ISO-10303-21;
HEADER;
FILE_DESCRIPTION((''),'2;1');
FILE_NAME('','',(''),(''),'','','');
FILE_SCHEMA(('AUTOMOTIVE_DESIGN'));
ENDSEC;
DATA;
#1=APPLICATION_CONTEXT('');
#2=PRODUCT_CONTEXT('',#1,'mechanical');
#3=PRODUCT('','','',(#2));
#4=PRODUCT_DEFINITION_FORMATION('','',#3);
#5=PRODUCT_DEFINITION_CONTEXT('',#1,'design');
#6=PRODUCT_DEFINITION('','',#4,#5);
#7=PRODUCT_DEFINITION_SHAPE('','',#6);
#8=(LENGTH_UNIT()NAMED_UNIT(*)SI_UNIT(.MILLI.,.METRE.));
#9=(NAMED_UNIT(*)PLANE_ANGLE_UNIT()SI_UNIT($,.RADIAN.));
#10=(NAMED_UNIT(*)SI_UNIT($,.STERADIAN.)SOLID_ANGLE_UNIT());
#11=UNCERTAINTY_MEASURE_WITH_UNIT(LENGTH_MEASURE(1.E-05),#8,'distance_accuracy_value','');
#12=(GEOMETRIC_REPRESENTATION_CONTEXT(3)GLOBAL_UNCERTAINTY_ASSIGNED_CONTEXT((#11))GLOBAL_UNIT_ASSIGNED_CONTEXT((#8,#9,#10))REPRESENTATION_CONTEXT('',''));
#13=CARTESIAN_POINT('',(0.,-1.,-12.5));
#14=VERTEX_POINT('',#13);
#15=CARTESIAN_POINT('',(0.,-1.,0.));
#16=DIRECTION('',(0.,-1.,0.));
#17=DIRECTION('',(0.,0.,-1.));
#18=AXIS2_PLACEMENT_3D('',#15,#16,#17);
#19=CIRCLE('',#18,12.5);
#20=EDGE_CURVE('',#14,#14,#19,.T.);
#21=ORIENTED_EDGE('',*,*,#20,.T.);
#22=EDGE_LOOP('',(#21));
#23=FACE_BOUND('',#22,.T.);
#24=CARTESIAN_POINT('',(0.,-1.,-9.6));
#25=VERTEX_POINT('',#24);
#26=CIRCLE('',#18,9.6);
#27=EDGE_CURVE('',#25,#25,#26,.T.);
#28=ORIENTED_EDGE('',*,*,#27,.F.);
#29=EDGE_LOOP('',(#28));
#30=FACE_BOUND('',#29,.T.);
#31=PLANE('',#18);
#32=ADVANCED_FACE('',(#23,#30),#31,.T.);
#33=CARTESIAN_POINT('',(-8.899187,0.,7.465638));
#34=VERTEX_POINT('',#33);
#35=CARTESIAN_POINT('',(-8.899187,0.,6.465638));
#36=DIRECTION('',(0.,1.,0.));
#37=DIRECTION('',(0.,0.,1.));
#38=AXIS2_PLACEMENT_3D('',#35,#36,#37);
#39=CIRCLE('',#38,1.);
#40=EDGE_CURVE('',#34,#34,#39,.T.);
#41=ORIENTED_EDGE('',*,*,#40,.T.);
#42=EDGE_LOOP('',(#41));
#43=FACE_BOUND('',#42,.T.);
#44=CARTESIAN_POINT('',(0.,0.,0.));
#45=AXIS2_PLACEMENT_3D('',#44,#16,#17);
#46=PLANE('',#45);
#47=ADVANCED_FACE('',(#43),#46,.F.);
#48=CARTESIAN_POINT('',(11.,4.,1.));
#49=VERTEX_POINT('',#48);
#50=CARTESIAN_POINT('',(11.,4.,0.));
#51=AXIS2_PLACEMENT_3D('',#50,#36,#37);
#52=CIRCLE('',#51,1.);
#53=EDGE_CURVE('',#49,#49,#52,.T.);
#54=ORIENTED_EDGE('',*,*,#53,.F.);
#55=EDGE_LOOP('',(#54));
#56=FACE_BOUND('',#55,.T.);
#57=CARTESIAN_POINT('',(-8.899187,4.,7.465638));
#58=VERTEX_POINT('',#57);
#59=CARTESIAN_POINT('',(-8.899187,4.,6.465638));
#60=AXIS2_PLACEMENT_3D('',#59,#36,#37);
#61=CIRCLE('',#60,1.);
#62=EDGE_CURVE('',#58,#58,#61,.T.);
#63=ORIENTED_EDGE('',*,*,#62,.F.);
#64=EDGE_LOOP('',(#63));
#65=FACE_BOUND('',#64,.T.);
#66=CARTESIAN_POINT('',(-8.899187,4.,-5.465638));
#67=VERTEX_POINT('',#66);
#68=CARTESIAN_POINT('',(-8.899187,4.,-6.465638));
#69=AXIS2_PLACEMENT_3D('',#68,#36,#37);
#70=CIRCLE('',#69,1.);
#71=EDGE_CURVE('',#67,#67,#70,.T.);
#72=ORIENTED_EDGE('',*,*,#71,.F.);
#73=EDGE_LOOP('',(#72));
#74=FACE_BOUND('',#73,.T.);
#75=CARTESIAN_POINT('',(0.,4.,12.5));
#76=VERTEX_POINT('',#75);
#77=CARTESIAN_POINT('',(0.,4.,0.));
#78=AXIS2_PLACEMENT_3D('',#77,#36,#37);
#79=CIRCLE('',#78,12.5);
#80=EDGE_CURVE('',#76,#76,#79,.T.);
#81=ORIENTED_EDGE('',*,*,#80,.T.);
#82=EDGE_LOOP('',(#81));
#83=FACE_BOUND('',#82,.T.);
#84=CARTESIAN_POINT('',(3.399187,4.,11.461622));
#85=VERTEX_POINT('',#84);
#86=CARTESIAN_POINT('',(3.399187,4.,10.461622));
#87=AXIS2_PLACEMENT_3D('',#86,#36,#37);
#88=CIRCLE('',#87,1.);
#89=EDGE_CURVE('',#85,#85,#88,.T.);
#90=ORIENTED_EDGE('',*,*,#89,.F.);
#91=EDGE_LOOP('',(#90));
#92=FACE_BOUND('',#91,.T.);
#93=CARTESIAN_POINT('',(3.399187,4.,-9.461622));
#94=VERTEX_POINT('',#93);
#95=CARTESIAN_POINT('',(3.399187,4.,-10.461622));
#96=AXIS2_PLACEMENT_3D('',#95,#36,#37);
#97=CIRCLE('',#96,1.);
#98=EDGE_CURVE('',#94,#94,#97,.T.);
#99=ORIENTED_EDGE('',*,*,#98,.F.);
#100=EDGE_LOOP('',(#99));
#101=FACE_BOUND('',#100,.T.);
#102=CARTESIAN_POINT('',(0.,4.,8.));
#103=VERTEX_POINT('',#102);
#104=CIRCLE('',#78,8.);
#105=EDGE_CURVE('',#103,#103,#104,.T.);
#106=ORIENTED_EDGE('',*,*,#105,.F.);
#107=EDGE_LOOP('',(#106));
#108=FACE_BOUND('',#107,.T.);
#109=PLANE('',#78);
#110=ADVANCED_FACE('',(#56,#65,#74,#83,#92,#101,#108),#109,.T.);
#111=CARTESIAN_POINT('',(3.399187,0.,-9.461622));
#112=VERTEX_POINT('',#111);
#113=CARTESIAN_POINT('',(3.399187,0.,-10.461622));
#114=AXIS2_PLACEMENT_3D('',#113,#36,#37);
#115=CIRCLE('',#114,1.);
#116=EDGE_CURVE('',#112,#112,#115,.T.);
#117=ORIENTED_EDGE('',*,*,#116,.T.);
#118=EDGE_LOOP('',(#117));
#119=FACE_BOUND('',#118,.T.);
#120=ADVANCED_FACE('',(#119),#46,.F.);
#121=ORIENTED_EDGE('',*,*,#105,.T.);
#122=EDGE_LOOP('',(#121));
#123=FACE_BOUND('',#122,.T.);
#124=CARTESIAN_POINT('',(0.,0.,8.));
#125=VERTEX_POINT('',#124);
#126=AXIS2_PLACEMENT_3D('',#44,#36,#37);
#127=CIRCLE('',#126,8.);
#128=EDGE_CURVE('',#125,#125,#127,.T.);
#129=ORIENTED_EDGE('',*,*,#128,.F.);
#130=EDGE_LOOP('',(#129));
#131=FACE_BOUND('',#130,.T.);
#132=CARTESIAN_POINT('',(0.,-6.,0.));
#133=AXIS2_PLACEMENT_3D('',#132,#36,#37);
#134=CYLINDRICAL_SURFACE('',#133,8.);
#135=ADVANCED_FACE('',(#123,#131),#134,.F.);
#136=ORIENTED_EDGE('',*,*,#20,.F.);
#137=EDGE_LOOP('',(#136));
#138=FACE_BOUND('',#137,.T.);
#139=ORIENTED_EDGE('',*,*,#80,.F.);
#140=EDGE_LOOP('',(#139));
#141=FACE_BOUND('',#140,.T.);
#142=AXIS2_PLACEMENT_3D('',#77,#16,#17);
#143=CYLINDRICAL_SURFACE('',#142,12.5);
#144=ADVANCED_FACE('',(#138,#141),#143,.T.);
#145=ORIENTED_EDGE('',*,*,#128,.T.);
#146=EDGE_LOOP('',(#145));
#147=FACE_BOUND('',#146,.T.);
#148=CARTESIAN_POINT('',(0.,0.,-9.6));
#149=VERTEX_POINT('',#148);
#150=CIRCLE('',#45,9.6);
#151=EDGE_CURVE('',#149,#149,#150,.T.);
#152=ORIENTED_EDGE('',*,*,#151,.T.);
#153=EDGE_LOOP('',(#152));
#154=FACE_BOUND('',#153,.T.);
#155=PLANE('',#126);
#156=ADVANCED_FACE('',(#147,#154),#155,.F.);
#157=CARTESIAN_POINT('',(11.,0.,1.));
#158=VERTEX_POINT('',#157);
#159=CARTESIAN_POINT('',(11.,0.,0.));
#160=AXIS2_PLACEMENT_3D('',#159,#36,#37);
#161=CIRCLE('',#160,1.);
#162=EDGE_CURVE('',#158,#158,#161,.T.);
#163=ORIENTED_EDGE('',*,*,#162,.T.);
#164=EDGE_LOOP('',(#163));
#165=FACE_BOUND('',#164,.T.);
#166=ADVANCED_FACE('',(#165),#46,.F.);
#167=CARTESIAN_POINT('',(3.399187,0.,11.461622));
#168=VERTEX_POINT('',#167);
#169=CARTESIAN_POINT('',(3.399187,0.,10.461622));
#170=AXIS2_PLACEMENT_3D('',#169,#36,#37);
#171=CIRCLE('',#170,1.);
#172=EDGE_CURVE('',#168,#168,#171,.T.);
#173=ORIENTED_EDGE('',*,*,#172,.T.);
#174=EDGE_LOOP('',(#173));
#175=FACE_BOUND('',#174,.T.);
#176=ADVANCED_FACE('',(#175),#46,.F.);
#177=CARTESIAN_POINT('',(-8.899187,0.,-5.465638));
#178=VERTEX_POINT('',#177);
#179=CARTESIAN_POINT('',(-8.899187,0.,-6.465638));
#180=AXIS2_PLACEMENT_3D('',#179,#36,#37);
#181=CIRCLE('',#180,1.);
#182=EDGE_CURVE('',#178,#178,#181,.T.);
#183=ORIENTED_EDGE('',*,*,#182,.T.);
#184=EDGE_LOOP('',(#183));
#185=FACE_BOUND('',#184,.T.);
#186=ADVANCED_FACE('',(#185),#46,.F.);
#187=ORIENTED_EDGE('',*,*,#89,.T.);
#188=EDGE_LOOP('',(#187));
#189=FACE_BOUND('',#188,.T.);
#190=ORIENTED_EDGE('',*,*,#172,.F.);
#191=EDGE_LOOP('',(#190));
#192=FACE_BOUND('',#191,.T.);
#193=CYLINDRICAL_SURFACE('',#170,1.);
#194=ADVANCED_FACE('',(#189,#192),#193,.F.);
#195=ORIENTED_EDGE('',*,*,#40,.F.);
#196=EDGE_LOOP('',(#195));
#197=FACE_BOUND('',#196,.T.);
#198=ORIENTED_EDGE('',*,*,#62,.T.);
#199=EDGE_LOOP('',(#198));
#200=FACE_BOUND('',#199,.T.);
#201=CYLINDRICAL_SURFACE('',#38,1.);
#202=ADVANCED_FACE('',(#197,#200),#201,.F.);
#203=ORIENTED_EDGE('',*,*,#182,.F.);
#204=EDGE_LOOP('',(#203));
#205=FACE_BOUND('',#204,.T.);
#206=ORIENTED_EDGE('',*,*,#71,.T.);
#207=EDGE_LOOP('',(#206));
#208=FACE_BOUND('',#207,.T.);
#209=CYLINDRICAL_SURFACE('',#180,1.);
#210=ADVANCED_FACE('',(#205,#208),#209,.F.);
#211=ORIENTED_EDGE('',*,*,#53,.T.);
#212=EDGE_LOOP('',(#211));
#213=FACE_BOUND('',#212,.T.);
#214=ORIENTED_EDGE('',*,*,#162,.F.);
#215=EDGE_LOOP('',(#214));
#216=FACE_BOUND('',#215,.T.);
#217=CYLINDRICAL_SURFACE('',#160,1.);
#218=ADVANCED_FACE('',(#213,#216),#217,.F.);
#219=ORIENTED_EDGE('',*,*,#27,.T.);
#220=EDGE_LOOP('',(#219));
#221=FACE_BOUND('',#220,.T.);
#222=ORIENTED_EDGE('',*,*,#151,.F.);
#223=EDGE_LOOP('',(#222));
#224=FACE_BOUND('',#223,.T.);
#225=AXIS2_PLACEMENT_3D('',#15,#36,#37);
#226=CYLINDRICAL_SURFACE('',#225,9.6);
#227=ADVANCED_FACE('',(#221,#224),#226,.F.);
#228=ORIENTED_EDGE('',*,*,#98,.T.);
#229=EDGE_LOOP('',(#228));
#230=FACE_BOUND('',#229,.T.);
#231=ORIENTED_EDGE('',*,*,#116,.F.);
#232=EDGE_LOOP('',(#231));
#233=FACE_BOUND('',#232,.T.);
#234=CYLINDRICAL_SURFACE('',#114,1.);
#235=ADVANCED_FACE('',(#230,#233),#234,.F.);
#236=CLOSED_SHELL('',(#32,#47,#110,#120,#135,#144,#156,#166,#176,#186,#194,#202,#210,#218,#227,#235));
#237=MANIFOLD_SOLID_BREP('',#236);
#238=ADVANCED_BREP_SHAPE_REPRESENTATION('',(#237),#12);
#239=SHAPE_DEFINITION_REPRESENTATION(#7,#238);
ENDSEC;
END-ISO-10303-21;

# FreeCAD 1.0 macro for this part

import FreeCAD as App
import Part
import Sketcher

V = App.Vector

doc = App.newDocument("Part")
body = doc.addObject("PartDesign::Body", "Body")

sketch1 = doc.addObject("Sketcher::SketchObject", "Sketch")
body.addObject(sketch1)
sketch1.AttachmentSupport = (doc.XZ_Plane, [""])
sketch1.MapMode = "FlatFace"
sketch1.addGeometry(Part.Circle(V(0, 0, 0), V(0, 0, 1), 12), False)
sketch1.addConstraint([
    Sketcher.Constraint("Coincident", 0, 3, -1, 1),
    Sketcher.Constraint("Diameter", 0, 25.0),
])
pad1 = doc.addObject("PartDesign::Pad", "Pad")
body.addObject(pad1)
pad1.Profile = sketch1
pad1.Length = 4
pad1.Reversed = True

sketch2 = doc.addObject("Sketcher::SketchObject", "Sketch001")
body.addObject(sketch2)
sketch2.AttachmentSupport = (doc.XZ_Plane, [""])
sketch2.MapMode = "FlatFace"
sketch2.AttachmentOffset = App.Placement(V(0, 0, -4), App.Rotation())
sketch2.addGeometry([
    Part.Circle(V(10, 0, 0), V(0, 0, 1), 1),
    Part.Circle(V(3.4, 10.5, 0), V(0, 0, 1), 1),
    Part.Circle(V(-8.6, 7.4, 0), V(0, 0, 1), 1),
    Part.Circle(V(-9.4, -4.9, 0), V(0, 0, 1), 1),
    Part.Circle(V(2.1, -9.5, 0), V(0, 0, 1), 1),
], False)
sketch2.addConstraint([
    Sketcher.Constraint("Equal", 0, 1),
    Sketcher.Constraint("Equal", 1, 2),
    Sketcher.Constraint("Equal", 2, 3),
    Sketcher.Constraint("Equal", 3, 4),
    Sketcher.Constraint("PointOnObject", 0, 3, -1),
    Sketcher.Constraint("Diameter", 0, 2.0),
    Sketcher.Constraint("DistanceX", -1, 1, 0, 3, 10.0),
    Sketcher.Constraint("DistanceY", -1, 1, 1, 3, 10.461622),
    Sketcher.Constraint("DistanceX", 2, 3, -1, 1, 8.59017),
    Sketcher.Constraint("DistanceX", -1, 1, 4, 3, 2.09017),
    Sketcher.Constraint("DistanceY", 3, 3, 2, 3, 12.34349),
    Sketcher.Constraint("DistanceY", 4, 3, 3, 3, 4.583769),
    Sketcher.Constraint("DistanceX", -1, 1, 1, 3, 3.399187),
    Sketcher.Constraint("DistanceY", -1, 1, 2, 3, 7.416694),
    Sketcher.Constraint("DistanceX", 3, 3, -1, 1, 9.399187),
])
pad2 = doc.addObject("PartDesign::Pad", "Pad001")
body.addObject(pad2)
pad2.Profile = sketch2
pad2.Length = 7.5
pad2.Reversed = True

sketch3 = doc.addObject("Sketcher::SketchObject", "Sketch002")
body.addObject(sketch3)
sketch3.AttachmentSupport = (doc.XZ_Plane, [""])
sketch3.MapMode = "FlatFace"
sketch3.AttachmentOffset = App.Placement(V(0, 0, -4), App.Rotation())
sketch3.addGeometry(Part.Circle(V(0, 0, 0), V(0, 0, 1), 6), False)
sketch3.addConstraint([
    Sketcher.Constraint("Coincident", 0, 3, -1, 1),
    Sketcher.Constraint("Diameter", 0, 12.0),
])
pocket1 = doc.addObject("PartDesign::Pocket", "Pocket")
body.addObject(pocket1)
pocket1.Profile = sketch3
pocket1.Length = 10
pocket1.Reversed = True

sketch4 = doc.addObject("Sketcher::SketchObject", "Sketch003")
body.addObject(sketch4)
sketch4.AttachmentSupport = (doc.XZ_Plane, [""])
sketch4.MapMode = "FlatFace"
sketch4.AttachmentOffset = App.Placement(V(0, 0, -11.5), App.Rotation())
sketch4.addGeometry(Part.Circle(V(-9.4, -4.9, 0), V(0, 0, 1), 1), False)
sketch4.addConstraint([
    Sketcher.Constraint("Diameter", 0, 2.0),
    Sketcher.Constraint("DistanceX", 0, 3, -1, 1, 9.399187),
    Sketcher.Constraint("DistanceY", 0, 3, -1, 1, 4.926796),
])
pocket2 = doc.addObject("PartDesign::Pocket", "Pocket001")
body.addObject(pocket2)
pocket2.Profile = sketch4
pocket2.Length = 7.5
pocket2.Reversed = True

sketch5 = doc.addObject("Sketcher::SketchObject", "Sketch004")
body.addObject(sketch5)
sketch5.AttachmentSupport = (doc.XZ_Plane, [""])
sketch5.MapMode = "FlatFace"
sketch5.AttachmentOffset = App.Placement(V(0, 0, -4), App.Rotation())
sketch5.addGeometry([
    Part.Circle(V(0, 0, 0), V(0, 0, 1), 12),
    Part.Circle(V(0, 0, 0), V(0, 0, 1), 6),
], False)
sketch5.addConstraint([
    Sketcher.Constraint("Coincident", 0, 3, -1, 1),
    Sketcher.Constraint("Coincident", 1, 3, -1, 1),
    Sketcher.Constraint("Diameter", 0, 25.0),
    Sketcher.Constraint("Diameter", 1, 12.0),
])
pocket3 = doc.addObject("PartDesign::Pocket", "Pocket002")
body.addObject(pocket3)
pocket3.Profile = sketch5
pocket3.Length = 10

sketch6 = doc.addObject("Sketcher::SketchObject", "Sketch005")
body.addObject(sketch6)
sketch6.AttachmentSupport = (doc.XZ_Plane, [""])
sketch6.MapMode = "FlatFace"
sketch6.AttachmentOffset = App.Placement(V(0, 0, -4), App.Rotation())
sketch6.addGeometry([
    Part.Circle(V(11, 0, 0), V(0, 0, 1), 1),
    Part.Circle(V(3.4, 10.5, 0), V(0, 0, 1), 1),
    Part.Circle(V(-8.9, 6.5, 0), V(0, 0, 1), 1),
    Part.Circle(V(-8.9, -6.5, 0), V(0, 0, 1), 1),
    Part.Circle(V(3.4, -10.5, 0), V(0, 0, 1), 1),
], False)
sketch6.addConstraint([
    Sketcher.Constraint("Equal", 0, 1),
    Sketcher.Constraint("Equal", 1, 2),
    Sketcher.Constraint("Equal", 2, 3),
    Sketcher.Constraint("Equal", 3, 4),
    Sketcher.Constraint("Symmetric", 2, 3, 3, 3, -1),
    Sketcher.Constraint("Symmetric", 1, 3, 4, 3, -1),
    Sketcher.Constraint("PointOnObject", 0, 3, -1),
    Sketcher.Constraint("Diameter", 0, 2.0),
    Sketcher.Constraint("DistanceX", -1, 1, 0, 3, 11.0),
    Sketcher.Constraint("DistanceY", -1, 1, 1, 3, 10.461622),
    Sketcher.Constraint("DistanceY", 3, 3, 1, 3, 16.927259),
    Sketcher.Constraint("DistanceX", -1, 1, 1, 3, 3.399187),
    Sketcher.Constraint("DistanceX", 2, 3, -1, 1, 8.899187),
])
pad3 = doc.addObject("PartDesign::Pad", "Pad002")
body.addObject(pad3)
pad3.Profile = sketch6
pad3.Length = 10
pad3.Reversed = True

sketch7 = doc.addObject("Sketcher::SketchObject", "Sketch006")
body.addObject(sketch7)
sketch7.AttachmentSupport = (doc.XZ_Plane, [""])
sketch7.MapMode = "FlatFace"
sketch7.AttachmentOffset = App.Placement(V(0, 0, -14), App.Rotation())
sketch7.addGeometry([
    Part.Circle(V(-8.9, 6.5, 0), V(0, 0, 1), 1),
    Part.Circle(V(3.4, 10.5, 0), V(0, 0, 1), 1),
    Part.Circle(V(11, 0, 0), V(0, 0, 1), 1),
    Part.Circle(V(3.4, -10.5, 0), V(0, 0, 1), 1),
    Part.Circle(V(-8.9, -6.5, 0), V(0, 0, 1), 1),
], False)
sketch7.addConstraint([
    Sketcher.Constraint("Equal", 0, 1),
    Sketcher.Constraint("Equal", 1, 2),
    Sketcher.Constraint("Equal", 2, 3),
    Sketcher.Constraint("Equal", 3, 4),
    Sketcher.Constraint("Symmetric", 1, 3, 3, 3, -1),
    Sketcher.Constraint("Symmetric", 0, 3, 4, 3, -1),
    Sketcher.Constraint("PointOnObject", 2, 3, -1),
    Sketcher.Constraint("Diameter", 0, 2.0),
    Sketcher.Constraint("DistanceX", -1, 1, 2, 3, 11.0),
    Sketcher.Constraint("DistanceY", -1, 1, 1, 3, 10.461622),
    Sketcher.Constraint("DistanceY", 3, 3, 0, 3, 16.927259),
    Sketcher.Constraint("DistanceX", 0, 3, -1, 1, 8.899187),
    Sketcher.Constraint("DistanceX", -1, 1, 1, 3, 3.399187),
])
pocket4 = doc.addObject("PartDesign::Pocket", "Pocket003")
body.addObject(pocket4)
pocket4.Profile = sketch7
pocket4.Length = 14
pocket4.Reversed = True

sketch8 = doc.addObject("Sketcher::SketchObject", "Sketch007")
body.addObject(sketch8)
sketch8.AttachmentSupport = (doc.XZ_Plane, [""])
sketch8.MapMode = "FlatFace"
sketch8.AttachmentOffset = App.Placement(V(0, 0, -4), App.Rotation())
sketch8.addGeometry(Part.Circle(V(0, 0, 0), V(0, 0, 1), 8), False)
sketch8.addConstraint([
    Sketcher.Constraint("Coincident", 0, 3, -1, 1),
    Sketcher.Constraint("Diameter", 0, 16.0),
])
pocket5 = doc.addObject("PartDesign::Pocket", "Pocket004")
body.addObject(pocket5)
pocket5.Profile = sketch8
pocket5.Length = 10
pocket5.Reversed = True

sketch9 = doc.addObject("Sketcher::SketchObject", "Sketch008")
body.addObject(sketch9)
sketch9.AttachmentSupport = (doc.XZ_Plane, [""])
sketch9.MapMode = "FlatFace"
sketch9.addGeometry([
    Part.Circle(V(0, 0, 0), V(0, 0, 1), 12),
    Part.Circle(V(0, 0, 0), V(0, 0, 1), 10),
], False)
sketch9.addConstraint([
    Sketcher.Constraint("Coincident", 0, 3, -1, 1),
    Sketcher.Constraint("Coincident", 1, 3, -1, 1),
    Sketcher.Constraint("Diameter", 0, 25.0),
    Sketcher.Constraint("Diameter", 1, 19.2),
])
pad4 = doc.addObject("PartDesign::Pad", "Pad003")
body.addObject(pad4)
pad4.Profile = sketch9
pad4.Length = 1

doc.recompute()
